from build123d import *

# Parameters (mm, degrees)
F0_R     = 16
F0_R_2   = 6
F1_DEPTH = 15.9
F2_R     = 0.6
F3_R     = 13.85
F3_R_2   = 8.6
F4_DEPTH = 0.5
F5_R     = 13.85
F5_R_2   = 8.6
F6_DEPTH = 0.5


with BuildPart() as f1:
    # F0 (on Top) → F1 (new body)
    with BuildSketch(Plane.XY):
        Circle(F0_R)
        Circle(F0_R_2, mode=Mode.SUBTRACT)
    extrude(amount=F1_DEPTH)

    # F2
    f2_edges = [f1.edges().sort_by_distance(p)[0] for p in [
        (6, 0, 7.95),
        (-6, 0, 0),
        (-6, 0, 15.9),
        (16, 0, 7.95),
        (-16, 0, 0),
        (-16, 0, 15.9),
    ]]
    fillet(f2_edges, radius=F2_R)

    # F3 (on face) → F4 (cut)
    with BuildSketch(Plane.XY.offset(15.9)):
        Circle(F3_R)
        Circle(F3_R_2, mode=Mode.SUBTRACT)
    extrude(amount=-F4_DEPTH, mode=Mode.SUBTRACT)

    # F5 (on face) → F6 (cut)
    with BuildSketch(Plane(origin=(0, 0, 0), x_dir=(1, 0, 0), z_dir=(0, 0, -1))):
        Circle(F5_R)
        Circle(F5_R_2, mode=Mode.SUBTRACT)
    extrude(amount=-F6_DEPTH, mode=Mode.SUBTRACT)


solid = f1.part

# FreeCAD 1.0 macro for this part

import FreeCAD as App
import Part
import Sketcher

V = App.Vector

doc = App.newDocument("Part")
body = doc.addObject("PartDesign::Body", "Body")

# Sketch on XY plane
sketch1 = body.newObject("Sketcher::SketchObject", "Sketch")
sketch1.AttachmentSupport = (doc.getObject("XY_Plane"), [""])
sketch1.MapMode = "FlatFace"
sketch1.addGeometry(Part.Circle(V(0, 0, 0), V(0, 0, 1), 16), False)
sketch1.addGeometry(Part.Circle(V(0, 0, 0), V(0, 0, 1), 6), False)
sketch1.addConstraint(Sketcher.Constraint("Coincident", 0, 3, -1, 1))
sketch1.addConstraint(Sketcher.Constraint("Coincident", 1, 3, -1, 1))
sketch1.addConstraint(Sketcher.Constraint("Diameter", 0, 32.0))
sketch1.addConstraint(Sketcher.Constraint("Diameter", 1, 12.0))
pad1 = body.newObject("PartDesign::Pad", "Pad")
pad1.Profile = sketch1
pad1.Length = 15.9
doc.recompute()

fillet = body.newObject("PartDesign::Fillet", "Fillet")
fillet.Base = (pad1, ["Edge1"])
fillet.UseAllEdges = True
fillet.Radius = 0.6

# Sketch on XY plane
sketch2 = body.newObject("Sketcher::SketchObject", "Sketch001")
sketch2.AttachmentSupport = (doc.getObject("XY_Plane"), [""])
sketch2.MapMode = "FlatFace"
sketch2.AttachmentOffset = App.Placement(V(0, 0, 15.9), App.Rotation())
sketch2.addGeometry(Part.Circle(V(0, 0, 0), V(0, 0, 1), 13.85), False)
sketch2.addGeometry(Part.Circle(V(0, 0, 0), V(0, 0, 1), 8.6), False)
sketch2.addConstraint(Sketcher.Constraint("Coincident", 0, 3, -1, 1))
sketch2.addConstraint(Sketcher.Constraint("Coincident", 1, 3, -1, 1))
sketch2.addConstraint(Sketcher.Constraint("Diameter", 0, 27.7))
sketch2.addConstraint(Sketcher.Constraint("Diameter", 1, 17.2))
pocket1 = body.newObject("PartDesign::Pocket", "Pocket")
pocket1.Profile = sketch2
pocket1.Length = 0.5

# Sketch on XY plane
sketch3 = body.newObject("Sketcher::SketchObject", "Sketch002")
sketch3.AttachmentSupport = (doc.getObject("XY_Plane"), [""])
sketch3.MapMode = "FlatFace"
sketch3.addGeometry(Part.Circle(V(0, 0, 0), V(0, 0, 1), 13.85), False)
sketch3.addGeometry(Part.Circle(V(0, 0, 0), V(0, 0, 1), 8.6), False)
sketch3.addConstraint(Sketcher.Constraint("Coincident", 0, 3, -1, 1))
sketch3.addConstraint(Sketcher.Constraint("Coincident", 1, 3, -1, 1))
sketch3.addConstraint(Sketcher.Constraint("Diameter", 0, 27.7))
sketch3.addConstraint(Sketcher.Constraint("Diameter", 1, 17.2))
pocket2 = body.newObject("PartDesign::Pocket", "Pocket001")
pocket2.Profile = sketch3
pocket2.Length = 0.5
pocket2.Reversed = True

doc.recompute()
